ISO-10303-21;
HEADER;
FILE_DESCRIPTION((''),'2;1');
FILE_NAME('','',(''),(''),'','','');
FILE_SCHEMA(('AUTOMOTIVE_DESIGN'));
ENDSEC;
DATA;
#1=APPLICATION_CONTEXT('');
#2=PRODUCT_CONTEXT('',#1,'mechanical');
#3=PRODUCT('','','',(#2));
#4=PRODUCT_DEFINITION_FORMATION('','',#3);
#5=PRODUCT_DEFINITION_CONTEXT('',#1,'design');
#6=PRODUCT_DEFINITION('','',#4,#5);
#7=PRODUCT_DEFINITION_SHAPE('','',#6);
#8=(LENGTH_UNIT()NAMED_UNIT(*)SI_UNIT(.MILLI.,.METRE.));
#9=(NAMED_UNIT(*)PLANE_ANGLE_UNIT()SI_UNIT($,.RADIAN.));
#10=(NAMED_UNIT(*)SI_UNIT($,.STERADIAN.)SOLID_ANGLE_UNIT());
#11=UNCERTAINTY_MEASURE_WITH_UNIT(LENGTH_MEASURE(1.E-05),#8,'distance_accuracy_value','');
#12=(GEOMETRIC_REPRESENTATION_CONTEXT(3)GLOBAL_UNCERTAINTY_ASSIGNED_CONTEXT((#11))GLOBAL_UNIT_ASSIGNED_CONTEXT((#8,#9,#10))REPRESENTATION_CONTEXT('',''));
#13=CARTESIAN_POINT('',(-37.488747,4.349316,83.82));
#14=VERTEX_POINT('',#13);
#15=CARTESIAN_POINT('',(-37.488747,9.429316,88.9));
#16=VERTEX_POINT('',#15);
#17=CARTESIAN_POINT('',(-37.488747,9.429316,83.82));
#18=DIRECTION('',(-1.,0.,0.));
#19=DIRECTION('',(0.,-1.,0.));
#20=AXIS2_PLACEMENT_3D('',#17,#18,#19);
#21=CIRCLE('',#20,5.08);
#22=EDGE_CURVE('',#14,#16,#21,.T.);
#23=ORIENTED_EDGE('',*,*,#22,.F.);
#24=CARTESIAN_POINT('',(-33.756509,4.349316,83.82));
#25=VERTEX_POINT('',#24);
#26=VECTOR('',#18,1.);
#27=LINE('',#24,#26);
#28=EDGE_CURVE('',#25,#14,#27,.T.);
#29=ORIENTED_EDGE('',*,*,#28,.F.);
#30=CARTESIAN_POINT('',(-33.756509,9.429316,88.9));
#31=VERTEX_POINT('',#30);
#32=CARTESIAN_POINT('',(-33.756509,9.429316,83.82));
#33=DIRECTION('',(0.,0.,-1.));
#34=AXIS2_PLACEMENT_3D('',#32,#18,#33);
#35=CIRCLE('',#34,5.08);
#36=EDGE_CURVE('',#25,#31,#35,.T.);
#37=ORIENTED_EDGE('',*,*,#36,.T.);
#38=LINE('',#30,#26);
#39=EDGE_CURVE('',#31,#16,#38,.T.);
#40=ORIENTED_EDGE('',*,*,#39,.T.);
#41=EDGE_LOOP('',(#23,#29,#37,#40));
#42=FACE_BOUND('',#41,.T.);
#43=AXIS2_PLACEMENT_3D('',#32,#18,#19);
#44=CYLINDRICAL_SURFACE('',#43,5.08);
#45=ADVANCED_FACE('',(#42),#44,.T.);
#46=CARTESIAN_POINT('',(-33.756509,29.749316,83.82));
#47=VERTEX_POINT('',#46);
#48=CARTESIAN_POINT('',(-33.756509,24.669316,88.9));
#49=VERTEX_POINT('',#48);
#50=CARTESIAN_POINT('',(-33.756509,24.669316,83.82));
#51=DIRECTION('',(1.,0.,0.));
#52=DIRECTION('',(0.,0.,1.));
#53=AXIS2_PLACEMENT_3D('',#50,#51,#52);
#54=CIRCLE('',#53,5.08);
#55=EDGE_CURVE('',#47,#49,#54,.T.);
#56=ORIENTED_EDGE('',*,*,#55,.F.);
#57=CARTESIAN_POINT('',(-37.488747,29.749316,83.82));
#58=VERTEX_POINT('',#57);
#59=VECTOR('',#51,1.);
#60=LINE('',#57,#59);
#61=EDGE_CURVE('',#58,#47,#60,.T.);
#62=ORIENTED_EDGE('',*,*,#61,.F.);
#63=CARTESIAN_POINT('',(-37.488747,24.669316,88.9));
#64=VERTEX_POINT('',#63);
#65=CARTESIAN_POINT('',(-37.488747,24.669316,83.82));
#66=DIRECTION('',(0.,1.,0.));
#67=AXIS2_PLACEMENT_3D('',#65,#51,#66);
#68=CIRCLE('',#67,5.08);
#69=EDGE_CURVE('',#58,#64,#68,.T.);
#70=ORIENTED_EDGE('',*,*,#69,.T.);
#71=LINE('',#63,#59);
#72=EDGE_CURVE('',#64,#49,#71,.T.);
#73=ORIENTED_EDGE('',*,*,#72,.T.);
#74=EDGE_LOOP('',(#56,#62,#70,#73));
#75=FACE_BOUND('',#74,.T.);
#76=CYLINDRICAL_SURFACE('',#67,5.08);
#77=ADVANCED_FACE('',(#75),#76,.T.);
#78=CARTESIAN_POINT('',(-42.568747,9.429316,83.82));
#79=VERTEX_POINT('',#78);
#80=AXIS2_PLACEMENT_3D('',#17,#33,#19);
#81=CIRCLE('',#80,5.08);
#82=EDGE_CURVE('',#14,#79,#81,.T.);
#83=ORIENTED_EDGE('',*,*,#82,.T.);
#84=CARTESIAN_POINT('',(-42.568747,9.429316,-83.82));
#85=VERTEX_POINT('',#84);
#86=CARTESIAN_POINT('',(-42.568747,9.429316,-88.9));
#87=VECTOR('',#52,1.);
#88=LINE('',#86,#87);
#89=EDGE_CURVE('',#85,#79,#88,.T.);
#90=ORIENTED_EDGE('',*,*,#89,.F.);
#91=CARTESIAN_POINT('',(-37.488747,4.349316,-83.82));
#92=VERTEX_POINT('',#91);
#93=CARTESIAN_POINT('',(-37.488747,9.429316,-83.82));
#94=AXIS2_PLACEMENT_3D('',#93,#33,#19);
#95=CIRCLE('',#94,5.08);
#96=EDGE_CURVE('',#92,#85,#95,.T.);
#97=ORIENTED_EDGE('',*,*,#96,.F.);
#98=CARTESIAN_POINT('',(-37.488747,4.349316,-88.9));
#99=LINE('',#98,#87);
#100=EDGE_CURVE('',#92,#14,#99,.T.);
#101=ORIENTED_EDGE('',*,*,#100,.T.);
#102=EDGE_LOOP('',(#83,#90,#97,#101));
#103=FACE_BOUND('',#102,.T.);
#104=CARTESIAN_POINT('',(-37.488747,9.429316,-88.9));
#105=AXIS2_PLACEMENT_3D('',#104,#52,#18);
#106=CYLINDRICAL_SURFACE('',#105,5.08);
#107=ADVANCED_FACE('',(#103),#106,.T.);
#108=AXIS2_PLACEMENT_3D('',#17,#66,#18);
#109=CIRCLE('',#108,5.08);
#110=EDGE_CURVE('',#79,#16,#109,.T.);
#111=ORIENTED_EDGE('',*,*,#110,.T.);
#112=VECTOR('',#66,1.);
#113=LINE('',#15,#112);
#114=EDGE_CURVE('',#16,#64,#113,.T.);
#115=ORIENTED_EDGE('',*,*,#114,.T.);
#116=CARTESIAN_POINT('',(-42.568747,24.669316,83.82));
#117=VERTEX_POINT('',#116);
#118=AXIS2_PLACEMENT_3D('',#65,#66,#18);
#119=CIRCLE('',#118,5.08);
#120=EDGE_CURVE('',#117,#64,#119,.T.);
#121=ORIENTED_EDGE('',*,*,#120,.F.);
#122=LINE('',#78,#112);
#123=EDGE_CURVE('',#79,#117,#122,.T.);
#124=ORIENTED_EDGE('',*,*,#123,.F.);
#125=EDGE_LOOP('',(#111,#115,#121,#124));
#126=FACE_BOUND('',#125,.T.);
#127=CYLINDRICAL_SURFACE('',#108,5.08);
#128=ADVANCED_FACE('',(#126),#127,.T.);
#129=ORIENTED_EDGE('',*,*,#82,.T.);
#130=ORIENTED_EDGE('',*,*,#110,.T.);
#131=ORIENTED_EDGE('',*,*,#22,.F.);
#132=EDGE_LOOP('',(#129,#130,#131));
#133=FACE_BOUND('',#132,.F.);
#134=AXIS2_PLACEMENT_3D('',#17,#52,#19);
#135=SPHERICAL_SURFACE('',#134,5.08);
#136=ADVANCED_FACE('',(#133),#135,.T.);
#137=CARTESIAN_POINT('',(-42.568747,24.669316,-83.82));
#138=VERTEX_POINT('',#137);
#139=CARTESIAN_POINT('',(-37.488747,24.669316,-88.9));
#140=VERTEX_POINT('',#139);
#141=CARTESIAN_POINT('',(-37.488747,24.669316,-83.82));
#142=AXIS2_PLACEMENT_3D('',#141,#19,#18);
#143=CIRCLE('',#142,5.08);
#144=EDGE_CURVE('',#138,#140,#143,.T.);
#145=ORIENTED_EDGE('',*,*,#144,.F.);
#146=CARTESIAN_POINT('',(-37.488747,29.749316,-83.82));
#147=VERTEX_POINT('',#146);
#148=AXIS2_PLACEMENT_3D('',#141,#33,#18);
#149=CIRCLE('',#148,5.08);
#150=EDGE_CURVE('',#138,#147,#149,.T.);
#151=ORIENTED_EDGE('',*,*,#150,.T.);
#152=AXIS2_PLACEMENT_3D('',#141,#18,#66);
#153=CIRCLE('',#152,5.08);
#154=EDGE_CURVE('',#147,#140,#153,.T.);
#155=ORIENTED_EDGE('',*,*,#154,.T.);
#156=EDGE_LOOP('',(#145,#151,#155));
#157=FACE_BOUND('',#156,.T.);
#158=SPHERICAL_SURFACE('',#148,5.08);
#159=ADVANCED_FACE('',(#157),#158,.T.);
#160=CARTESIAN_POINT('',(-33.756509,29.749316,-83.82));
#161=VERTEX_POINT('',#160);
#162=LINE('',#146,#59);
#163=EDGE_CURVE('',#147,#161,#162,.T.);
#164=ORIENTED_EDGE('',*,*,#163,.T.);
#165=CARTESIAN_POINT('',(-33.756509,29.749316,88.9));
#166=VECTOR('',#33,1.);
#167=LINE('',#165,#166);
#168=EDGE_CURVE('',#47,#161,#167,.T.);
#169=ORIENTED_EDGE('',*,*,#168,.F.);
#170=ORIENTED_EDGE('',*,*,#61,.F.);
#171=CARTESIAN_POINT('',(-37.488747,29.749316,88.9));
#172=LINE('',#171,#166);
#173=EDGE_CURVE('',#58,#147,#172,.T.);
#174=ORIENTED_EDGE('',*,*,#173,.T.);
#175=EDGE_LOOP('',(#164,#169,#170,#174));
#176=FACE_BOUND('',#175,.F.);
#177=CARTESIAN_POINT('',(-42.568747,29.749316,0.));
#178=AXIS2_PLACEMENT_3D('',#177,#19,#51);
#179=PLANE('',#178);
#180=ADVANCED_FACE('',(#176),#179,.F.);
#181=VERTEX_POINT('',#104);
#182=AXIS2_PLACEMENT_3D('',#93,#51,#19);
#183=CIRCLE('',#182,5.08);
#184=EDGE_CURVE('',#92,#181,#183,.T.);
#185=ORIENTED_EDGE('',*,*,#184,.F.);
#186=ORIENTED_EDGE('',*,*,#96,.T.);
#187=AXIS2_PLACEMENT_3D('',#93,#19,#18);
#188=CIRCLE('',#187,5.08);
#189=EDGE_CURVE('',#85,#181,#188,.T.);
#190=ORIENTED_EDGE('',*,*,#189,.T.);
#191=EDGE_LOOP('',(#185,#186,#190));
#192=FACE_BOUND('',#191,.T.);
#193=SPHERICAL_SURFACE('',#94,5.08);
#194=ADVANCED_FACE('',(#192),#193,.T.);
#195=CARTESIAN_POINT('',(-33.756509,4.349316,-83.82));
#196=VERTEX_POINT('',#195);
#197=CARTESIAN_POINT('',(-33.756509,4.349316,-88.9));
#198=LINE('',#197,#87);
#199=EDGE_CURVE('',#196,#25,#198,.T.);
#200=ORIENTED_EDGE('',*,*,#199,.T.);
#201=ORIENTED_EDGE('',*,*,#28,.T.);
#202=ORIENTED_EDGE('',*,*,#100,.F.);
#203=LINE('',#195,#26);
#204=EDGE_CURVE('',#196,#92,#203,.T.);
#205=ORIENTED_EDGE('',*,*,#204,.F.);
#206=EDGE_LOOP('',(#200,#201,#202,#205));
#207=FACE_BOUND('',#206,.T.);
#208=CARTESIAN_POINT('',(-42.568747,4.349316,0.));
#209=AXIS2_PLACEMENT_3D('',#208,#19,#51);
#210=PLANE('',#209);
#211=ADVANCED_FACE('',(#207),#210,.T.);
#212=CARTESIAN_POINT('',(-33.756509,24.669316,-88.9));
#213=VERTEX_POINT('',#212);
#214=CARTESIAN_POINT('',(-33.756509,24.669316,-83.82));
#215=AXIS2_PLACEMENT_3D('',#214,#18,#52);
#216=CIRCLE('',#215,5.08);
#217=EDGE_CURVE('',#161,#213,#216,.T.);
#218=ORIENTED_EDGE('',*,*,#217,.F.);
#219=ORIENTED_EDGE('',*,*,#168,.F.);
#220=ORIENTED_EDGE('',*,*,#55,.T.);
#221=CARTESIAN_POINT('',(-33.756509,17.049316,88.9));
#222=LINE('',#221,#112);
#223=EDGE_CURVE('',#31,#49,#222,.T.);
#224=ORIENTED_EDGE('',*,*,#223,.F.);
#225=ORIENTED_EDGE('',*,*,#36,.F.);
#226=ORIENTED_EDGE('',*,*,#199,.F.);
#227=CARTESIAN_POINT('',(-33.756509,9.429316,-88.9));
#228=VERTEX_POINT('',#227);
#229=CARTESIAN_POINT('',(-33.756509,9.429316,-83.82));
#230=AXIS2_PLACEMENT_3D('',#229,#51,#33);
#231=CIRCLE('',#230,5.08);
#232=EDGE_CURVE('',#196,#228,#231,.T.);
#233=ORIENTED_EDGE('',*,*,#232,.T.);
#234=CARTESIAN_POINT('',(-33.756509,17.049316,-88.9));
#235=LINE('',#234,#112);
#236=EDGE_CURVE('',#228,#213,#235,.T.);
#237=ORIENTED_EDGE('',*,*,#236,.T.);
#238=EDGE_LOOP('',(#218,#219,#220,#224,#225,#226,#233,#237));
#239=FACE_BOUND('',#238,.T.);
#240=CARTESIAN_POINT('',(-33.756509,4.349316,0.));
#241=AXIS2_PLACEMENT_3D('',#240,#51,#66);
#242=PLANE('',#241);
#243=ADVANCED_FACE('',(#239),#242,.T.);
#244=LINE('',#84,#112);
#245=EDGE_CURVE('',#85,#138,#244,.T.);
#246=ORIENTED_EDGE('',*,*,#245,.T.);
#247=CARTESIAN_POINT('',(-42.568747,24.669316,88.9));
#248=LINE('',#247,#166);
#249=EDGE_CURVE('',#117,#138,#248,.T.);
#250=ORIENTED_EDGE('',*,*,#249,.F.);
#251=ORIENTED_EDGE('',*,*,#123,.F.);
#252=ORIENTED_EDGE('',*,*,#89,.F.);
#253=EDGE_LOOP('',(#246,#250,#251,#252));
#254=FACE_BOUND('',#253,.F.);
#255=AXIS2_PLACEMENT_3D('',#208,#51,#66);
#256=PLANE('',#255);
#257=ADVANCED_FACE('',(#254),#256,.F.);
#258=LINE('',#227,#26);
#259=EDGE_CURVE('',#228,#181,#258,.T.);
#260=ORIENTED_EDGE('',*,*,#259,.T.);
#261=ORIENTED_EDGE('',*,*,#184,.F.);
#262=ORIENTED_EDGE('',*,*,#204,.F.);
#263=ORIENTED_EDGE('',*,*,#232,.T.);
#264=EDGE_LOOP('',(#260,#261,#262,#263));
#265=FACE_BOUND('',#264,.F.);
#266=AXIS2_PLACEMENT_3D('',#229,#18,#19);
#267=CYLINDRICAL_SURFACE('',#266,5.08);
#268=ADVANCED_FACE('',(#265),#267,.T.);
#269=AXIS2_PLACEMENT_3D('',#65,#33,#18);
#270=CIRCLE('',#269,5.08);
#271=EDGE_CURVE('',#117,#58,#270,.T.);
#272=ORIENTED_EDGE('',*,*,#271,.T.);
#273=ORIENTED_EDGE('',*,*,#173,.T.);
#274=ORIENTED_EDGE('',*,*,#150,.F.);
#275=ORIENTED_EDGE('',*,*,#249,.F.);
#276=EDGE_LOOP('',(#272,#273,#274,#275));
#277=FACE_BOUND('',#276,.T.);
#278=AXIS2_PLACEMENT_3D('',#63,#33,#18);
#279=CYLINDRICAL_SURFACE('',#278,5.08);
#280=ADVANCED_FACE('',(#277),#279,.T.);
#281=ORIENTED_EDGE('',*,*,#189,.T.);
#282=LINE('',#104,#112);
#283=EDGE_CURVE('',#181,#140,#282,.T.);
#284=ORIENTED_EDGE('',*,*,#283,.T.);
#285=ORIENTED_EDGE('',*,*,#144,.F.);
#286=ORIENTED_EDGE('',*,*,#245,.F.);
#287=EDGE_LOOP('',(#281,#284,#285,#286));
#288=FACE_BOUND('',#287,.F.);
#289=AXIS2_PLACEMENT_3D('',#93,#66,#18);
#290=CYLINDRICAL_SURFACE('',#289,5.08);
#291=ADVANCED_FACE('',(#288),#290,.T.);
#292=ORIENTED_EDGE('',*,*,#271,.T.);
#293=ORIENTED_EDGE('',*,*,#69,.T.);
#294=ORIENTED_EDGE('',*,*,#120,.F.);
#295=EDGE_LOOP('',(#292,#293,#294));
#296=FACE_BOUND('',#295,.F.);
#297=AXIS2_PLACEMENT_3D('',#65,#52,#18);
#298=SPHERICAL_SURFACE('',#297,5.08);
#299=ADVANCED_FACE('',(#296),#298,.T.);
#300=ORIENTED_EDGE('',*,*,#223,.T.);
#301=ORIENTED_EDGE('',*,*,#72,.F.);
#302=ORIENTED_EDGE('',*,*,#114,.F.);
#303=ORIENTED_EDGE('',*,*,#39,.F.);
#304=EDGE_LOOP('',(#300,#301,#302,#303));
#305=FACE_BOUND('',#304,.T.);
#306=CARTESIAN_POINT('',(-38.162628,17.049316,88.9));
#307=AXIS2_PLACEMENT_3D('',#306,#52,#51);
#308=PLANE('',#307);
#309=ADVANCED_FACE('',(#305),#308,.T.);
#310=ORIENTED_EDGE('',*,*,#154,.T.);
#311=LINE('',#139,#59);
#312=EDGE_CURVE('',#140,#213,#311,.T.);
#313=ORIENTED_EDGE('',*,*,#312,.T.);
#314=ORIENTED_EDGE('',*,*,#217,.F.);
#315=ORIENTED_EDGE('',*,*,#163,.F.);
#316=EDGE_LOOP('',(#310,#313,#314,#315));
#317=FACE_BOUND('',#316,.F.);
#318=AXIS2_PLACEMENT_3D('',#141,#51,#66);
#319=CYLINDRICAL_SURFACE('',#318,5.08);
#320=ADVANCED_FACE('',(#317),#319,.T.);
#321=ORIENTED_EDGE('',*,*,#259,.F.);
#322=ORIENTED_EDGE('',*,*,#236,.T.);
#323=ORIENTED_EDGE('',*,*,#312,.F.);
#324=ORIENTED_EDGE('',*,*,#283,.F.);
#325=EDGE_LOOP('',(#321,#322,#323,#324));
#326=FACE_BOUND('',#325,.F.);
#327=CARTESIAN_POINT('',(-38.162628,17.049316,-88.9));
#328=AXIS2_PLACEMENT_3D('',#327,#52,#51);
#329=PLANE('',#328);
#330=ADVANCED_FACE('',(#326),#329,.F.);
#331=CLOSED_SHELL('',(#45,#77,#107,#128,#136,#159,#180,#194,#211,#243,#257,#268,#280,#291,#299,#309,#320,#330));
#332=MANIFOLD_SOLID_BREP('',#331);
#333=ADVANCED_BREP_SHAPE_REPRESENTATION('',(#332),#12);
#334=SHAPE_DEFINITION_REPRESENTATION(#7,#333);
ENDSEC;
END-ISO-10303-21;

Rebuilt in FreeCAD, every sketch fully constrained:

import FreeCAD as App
import Part
import Sketcher
Q = App.Units.Quantity


def edges_at(feature, points):
    """Names of the edges that pass closest to the given points."""
    edges = feature.Shape.Edges
    near = lambda p: min(range(len(edges)), key=lambda i: edges[i].distToShape(Part.Vertex(*p))[0])
    return sorted({f"Edge{near(p) + 1}" for p in points})

doc = App.newDocument("Part")
body = doc.addObject("PartDesign::Body", "Body")

# Sketch on XY plane
sketch1 = body.newObject("Sketcher::SketchObject", "Sketch")
sketch1.AttachmentSupport = (doc.getObject("XY_Plane"), [""])
sketch1.MapMode = "FlatFace"
sketch1.addGeometry(Part.LineSegment(App.Vector(-43, 30, 0), App.Vector(-43, 4, 0)), False)
sketch1.addGeometry(Part.LineSegment(App.Vector(-43, 4, 0), App.Vector(-34, 4, 0)), False)
sketch1.addGeometry(Part.LineSegment(App.Vector(-34, 4, 0), App.Vector(-34, 30, 0)), False)
sketch1.addGeometry(Part.LineSegment(App.Vector(-34, 30, 0), App.Vector(-43, 30, 0)), False)
sketch1.addConstraint(Sketcher.Constraint("Coincident", 0, 2, 1, 1))
sketch1.addConstraint(Sketcher.Constraint("Coincident", 1, 2, 2, 1))
sketch1.addConstraint(Sketcher.Constraint("Coincident", 2, 2, 3, 1))
sketch1.addConstraint(Sketcher.Constraint("Coincident", 3, 2, 0, 1))
sketch1.addConstraint(Sketcher.Constraint("Vertical", 0))
sketch1.addConstraint(Sketcher.Constraint("Horizontal", 1))
sketch1.addConstraint(Sketcher.Constraint("Vertical", 2))
sketch1.addConstraint(Sketcher.Constraint("Horizontal", 3))
sketch1.addConstraint(Sketcher.Constraint("DistanceY", 0, 2, 0, 1, Q("1 in")))
sketch1.addConstraint(Sketcher.Constraint("DistanceX", 1, 1, 1, 2, Q("8.812238 mm")))
sketch1.addConstraint(Sketcher.Constraint("DistanceX", 1, 2, -1, 1, Q("33.756509 mm")))
sketch1.addConstraint(Sketcher.Constraint("DistanceY", -1, 1, 0, 2, Q("4.349316 mm")))
pad1 = body.newObject("PartDesign::Pad", "Pad")
pad1.Profile = sketch1
pad1.Type = "TwoLengths"
pad1.Length = Q("3.5 in")
pad1.Length2 = Q("3.5 in")
doc.recompute()

fillet = body.newObject("PartDesign::Fillet", "Fillet")
fillet.Base = (pad1, edges_at(pad1, [(-42.569, 4.349, 0)]))
fillet.Radius = Q("0.2 in")
doc.recompute()

fillet2 = body.newObject("PartDesign::Fillet", "Fillet001")
fillet2.Base = (fillet, edges_at(fillet, [(-42.569, 29.749, 0)]))
fillet2.Radius = Q("0.2 in")
doc.recompute()

fillet3 = body.newObject("PartDesign::Fillet", "Fillet002")
fillet3.Base = (fillet2, edges_at(fillet2, [(-42.569, 17.049, 88.9)]))
fillet3.Radius = Q("0.2 in")
doc.recompute()

fillet4 = body.newObject("PartDesign::Fillet", "Fillet003")
fillet4.Base = (fillet3, edges_at(fillet3, [(-42.569, 17.049, -88.9)]))
fillet4.Radius = Q("0.2 in")

doc.recompute()
